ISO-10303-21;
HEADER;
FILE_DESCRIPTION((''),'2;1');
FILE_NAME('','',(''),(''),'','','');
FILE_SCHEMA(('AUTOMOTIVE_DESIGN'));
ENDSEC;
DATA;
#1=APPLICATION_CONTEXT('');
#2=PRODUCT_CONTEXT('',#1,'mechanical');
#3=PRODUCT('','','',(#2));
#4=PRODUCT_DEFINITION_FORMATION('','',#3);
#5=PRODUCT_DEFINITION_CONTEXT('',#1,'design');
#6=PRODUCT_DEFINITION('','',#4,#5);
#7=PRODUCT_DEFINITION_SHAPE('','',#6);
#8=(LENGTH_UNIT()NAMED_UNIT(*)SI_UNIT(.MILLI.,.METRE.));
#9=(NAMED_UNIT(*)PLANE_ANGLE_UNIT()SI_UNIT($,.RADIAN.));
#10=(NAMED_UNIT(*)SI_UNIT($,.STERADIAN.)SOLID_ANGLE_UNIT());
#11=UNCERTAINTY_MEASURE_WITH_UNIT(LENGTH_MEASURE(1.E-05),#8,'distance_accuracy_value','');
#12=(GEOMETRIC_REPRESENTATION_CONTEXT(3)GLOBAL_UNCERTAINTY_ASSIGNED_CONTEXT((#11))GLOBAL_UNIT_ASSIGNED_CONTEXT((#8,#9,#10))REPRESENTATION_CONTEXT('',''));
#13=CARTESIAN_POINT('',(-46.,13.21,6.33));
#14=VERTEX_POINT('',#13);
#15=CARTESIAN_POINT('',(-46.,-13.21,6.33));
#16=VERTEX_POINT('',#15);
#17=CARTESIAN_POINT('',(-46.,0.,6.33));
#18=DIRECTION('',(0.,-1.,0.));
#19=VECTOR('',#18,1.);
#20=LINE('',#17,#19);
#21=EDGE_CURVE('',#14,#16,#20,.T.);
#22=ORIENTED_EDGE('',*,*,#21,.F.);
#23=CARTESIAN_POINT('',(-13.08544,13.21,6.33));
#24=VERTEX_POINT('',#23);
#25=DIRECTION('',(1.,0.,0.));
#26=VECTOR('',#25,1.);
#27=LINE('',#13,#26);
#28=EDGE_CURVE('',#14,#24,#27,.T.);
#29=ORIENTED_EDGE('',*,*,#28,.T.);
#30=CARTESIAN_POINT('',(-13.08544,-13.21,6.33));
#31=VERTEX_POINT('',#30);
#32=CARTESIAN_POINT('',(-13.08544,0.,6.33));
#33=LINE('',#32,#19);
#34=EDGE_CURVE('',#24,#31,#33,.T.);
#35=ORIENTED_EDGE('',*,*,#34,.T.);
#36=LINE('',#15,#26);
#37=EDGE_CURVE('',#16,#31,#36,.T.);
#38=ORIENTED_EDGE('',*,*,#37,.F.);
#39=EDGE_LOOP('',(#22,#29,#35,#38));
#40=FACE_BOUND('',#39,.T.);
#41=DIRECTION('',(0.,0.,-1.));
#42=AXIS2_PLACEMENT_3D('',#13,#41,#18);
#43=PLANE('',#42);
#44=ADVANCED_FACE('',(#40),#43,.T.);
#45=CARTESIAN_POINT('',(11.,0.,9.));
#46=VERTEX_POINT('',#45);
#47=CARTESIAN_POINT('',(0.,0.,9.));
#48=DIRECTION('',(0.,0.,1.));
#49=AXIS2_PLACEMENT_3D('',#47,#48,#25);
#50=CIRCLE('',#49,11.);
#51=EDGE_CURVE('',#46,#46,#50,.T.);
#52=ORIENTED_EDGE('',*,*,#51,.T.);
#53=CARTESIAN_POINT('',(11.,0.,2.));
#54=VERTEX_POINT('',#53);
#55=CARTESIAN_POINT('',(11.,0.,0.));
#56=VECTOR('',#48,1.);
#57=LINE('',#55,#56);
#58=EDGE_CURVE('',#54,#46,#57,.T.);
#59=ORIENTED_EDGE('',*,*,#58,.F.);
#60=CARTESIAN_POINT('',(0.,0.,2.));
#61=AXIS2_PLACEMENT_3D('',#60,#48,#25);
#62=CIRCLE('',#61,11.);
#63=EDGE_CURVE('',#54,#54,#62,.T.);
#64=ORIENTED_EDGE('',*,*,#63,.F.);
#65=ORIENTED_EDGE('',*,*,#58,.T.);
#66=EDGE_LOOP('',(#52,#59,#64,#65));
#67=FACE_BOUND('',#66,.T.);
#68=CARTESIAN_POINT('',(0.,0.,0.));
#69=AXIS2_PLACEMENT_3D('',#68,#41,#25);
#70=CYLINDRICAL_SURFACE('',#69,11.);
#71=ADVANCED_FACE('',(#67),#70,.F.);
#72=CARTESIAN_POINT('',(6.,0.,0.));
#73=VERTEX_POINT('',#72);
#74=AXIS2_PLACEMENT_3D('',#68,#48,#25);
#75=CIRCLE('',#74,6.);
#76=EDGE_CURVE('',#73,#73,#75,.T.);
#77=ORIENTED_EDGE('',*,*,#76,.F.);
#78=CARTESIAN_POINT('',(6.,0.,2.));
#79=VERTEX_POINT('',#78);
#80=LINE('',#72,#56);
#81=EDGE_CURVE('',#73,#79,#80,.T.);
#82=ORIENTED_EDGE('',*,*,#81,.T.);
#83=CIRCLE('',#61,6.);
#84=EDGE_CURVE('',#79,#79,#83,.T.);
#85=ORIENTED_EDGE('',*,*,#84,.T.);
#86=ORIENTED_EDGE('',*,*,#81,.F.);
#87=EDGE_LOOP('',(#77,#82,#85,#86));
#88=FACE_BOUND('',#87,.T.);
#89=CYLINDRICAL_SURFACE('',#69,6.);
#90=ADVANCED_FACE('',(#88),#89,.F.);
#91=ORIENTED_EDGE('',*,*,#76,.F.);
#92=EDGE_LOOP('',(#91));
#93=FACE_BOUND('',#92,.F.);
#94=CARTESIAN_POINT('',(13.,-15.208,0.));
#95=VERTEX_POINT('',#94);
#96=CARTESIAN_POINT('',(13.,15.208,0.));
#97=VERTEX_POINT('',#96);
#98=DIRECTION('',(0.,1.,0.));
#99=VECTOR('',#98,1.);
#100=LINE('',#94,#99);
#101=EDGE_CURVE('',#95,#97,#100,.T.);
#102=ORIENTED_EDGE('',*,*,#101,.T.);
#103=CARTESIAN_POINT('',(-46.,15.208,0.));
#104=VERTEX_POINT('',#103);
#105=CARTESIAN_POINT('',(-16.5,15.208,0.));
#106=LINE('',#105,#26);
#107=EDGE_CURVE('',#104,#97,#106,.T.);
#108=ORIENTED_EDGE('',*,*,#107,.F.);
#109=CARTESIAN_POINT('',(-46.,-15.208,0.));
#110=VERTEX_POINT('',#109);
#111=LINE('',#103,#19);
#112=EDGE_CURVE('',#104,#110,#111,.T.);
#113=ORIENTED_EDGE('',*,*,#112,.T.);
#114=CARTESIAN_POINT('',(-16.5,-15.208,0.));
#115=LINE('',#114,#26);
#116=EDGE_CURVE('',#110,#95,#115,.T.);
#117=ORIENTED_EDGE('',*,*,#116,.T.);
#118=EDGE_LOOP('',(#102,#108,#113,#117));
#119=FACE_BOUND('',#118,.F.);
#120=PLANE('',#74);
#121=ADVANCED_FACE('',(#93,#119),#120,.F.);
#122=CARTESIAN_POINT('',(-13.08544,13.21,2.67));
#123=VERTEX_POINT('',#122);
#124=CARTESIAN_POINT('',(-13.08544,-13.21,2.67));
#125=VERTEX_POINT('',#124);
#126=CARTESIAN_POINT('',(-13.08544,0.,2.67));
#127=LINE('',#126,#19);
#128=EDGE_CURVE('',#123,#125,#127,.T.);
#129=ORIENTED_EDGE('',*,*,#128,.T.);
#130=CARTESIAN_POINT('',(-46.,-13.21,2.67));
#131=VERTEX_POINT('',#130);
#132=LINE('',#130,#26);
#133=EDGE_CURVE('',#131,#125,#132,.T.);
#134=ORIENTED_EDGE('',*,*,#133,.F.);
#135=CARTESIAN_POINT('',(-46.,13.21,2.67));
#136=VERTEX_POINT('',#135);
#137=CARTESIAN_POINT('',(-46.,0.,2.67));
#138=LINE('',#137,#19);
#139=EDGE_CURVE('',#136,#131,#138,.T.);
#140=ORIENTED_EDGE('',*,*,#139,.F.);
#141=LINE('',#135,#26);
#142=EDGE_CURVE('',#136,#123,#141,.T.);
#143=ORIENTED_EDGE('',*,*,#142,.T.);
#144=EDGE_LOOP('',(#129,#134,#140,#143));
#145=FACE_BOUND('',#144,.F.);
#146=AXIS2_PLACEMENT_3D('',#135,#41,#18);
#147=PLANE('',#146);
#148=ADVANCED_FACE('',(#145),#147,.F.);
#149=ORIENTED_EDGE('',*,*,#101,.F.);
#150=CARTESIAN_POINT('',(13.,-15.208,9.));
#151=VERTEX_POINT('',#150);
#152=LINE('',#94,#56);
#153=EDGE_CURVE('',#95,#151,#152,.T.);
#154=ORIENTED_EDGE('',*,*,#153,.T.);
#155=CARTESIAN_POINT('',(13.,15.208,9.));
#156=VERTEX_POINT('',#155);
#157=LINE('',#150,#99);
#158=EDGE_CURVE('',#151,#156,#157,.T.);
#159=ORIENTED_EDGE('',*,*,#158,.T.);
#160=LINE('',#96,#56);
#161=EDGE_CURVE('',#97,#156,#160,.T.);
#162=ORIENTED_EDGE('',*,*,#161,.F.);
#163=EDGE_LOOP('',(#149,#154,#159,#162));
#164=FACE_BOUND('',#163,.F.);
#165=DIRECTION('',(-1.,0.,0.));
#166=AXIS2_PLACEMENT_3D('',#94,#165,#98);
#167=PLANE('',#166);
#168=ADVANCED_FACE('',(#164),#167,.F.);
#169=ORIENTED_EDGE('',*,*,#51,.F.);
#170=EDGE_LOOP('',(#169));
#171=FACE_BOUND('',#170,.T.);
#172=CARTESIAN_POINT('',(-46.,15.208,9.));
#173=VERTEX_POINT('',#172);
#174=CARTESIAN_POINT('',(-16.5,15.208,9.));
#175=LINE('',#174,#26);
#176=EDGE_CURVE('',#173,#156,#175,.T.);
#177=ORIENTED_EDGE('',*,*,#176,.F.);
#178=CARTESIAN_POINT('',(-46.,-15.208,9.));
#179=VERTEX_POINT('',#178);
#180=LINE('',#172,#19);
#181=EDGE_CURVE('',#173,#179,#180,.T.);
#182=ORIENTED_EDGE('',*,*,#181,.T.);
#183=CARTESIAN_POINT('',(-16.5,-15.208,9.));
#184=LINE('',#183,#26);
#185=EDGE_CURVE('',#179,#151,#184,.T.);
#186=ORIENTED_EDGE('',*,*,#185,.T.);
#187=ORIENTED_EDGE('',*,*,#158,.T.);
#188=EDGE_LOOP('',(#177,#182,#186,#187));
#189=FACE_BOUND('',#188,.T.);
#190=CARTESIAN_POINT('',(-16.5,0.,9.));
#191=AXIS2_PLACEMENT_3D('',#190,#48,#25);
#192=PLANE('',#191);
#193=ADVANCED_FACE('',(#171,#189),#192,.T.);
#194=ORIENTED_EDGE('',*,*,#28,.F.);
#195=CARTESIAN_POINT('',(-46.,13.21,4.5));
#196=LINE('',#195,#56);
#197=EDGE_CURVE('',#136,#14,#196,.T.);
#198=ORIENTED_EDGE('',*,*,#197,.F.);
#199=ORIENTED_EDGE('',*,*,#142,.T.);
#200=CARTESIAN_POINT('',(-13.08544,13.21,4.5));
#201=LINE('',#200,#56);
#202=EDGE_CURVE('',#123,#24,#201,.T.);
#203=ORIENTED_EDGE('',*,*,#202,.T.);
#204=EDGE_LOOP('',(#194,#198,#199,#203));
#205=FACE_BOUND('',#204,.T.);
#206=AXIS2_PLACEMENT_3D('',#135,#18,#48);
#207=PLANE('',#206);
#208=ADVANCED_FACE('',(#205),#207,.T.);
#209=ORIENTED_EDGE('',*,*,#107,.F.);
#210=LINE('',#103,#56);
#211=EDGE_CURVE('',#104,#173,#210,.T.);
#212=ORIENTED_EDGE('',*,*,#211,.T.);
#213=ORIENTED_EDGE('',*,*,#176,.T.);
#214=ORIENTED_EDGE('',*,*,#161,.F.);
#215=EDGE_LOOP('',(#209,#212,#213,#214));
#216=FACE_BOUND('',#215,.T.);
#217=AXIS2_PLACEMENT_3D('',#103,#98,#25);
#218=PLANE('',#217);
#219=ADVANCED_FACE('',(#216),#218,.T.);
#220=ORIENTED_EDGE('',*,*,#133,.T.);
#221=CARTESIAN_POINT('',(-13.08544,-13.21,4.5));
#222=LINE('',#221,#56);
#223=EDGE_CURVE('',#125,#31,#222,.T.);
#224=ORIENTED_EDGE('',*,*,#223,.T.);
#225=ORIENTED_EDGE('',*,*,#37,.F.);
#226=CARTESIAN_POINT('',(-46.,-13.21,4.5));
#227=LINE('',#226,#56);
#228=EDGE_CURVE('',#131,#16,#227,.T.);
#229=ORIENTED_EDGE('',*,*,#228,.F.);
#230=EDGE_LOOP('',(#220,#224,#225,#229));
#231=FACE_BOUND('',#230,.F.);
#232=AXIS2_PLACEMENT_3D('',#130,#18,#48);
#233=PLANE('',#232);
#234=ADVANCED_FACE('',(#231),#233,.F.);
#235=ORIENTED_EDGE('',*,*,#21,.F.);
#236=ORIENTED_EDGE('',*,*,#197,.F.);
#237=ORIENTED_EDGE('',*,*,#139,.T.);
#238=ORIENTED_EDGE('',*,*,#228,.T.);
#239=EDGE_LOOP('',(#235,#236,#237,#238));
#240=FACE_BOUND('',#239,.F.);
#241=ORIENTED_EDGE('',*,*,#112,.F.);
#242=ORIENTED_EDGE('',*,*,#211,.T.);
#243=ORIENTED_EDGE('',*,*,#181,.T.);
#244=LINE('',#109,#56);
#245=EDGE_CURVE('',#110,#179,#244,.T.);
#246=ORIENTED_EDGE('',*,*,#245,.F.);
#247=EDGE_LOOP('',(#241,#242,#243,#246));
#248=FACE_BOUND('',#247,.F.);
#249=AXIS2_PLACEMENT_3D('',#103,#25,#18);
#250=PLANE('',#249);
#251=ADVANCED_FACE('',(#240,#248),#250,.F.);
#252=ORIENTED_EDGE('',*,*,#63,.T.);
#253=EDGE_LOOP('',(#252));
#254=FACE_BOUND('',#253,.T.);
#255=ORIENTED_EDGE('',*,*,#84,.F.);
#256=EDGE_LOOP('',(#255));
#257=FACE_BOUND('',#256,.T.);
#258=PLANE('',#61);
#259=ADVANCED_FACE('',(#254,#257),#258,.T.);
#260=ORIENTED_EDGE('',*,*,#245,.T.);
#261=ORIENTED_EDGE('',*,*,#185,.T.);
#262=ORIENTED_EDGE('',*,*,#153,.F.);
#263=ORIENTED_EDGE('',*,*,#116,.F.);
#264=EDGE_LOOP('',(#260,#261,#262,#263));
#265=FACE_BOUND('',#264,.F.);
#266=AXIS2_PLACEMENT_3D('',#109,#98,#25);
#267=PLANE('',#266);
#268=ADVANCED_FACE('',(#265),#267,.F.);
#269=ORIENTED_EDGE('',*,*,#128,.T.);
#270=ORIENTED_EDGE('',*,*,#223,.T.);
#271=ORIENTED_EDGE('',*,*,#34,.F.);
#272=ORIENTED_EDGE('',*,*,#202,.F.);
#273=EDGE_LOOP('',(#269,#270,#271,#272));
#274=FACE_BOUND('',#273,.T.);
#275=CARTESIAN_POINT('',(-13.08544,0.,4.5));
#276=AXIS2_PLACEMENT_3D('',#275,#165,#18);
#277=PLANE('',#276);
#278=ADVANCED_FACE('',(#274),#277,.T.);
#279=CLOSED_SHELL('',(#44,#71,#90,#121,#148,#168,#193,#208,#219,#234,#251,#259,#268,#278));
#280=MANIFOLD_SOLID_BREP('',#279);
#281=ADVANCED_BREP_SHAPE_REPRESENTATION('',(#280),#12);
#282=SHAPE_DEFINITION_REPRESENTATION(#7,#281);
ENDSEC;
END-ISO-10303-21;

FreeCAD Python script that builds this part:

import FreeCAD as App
import Part
import Sketcher


def add_polygon(sketch, points):
    """Adds a closed chain of lines whose ends are joined by coincident constraints."""
    first, n = sketch.GeometryCount, len(points)
    for a, b in zip(points, points[1:] + points[:1]):
        sketch.addGeometry(Part.LineSegment(App.Vector(*a, 0), App.Vector(*b, 0)), False)
    for i in range(n):
        sketch.addConstraint(Sketcher.Constraint("Coincident", first + i, 2, first + (i + 1) % n, 1))

doc = App.newDocument("Part")
params = doc.addObject("Spreadsheet::Sheet", "Params")
for row, (alias, value) in enumerate([
    ("sketch1_diameter", "22 mm"),
    ("sketch1_width", "59 mm"),
    ("pad1_length", "9 mm"),
    ("sketch2_diameter", "22 mm"),
    ("sketch2_diameter2", "12 mm"),
    ("pad2_length", "2 mm"),
    ("sketch3_width", "26.42 mm"),
    ("sketch3_height", "3.66 mm"),
    ("pocket1_length", "32.91456 mm"),
], start=1):
    params.set(f"A{row}", alias)
    params.set(f"B{row}", "=" + value)
    params.setAlias(f"B{row}", alias)

body = doc.addObject("PartDesign::Body", "Body")

# Sketch on XY plane
sketch1 = doc.addObject("Sketcher::SketchObject", "Sketch")
body.addObject(sketch1)
sketch1.AttachmentSupport = (doc.XY_Plane, [""])
sketch1.MapMode = "FlatFace"
add_polygon(sketch1, [(13, 15.208), (-46, 15.208), (-46, -15.208), (13, -15.208)])  # lines 0-3
sketch1.addGeometry(Part.Circle(App.Vector(0, 0, 0), App.Vector(0, 0, 1), 11), False)  # 4
sketch1.addConstraint([
    Sketcher.Constraint("Horizontal", 0),
    Sketcher.Constraint("Vertical", 1),
    Sketcher.Constraint("Horizontal", 2),
    Sketcher.Constraint("Vertical", 3),
    Sketcher.Constraint("Coincident", 4, 3, -1, 1),
    Sketcher.Constraint("Diameter", 4, 22.0),
    Sketcher.Constraint("DistanceX", 0, 2, 0, 1, 59.0),
    Sketcher.Constraint("DistanceX", 0, 2, -1, 1, 46.0),
    Sketcher.Constraint("DistanceY", 1, 2, 1, 1, 30.416),
    Sketcher.Constraint("DistanceY", -1, 1, 0, 2, 15.208),
])
sketch1.setExpression("Constraints[9]", "Params.sketch1_diameter")
sketch1.setExpression("Constraints[10]", "Params.sketch1_width")
pad1 = doc.addObject("PartDesign::Pad", "Pad")
body.addObject(pad1)
pad1.Profile = sketch1
pad1.setExpression("Length", "Params.pad1_length")

# Sketch on XY plane
sketch2 = doc.addObject("Sketcher::SketchObject", "Sketch001")
body.addObject(sketch2)
sketch2.AttachmentSupport = (doc.XY_Plane, [""])
sketch2.MapMode = "FlatFace"
sketch2.addGeometry([
    Part.Circle(App.Vector(0, 0, 0), App.Vector(0, 0, 1), 11),
    Part.Circle(App.Vector(0, 0, 0), App.Vector(0, 0, 1), 6),
], False)
sketch2.addConstraint([
    Sketcher.Constraint("Coincident", 0, 3, -1, 1),
    Sketcher.Constraint("Coincident", 1, 3, -1, 1),
    Sketcher.Constraint("Diameter", 0, 22.0),
    Sketcher.Constraint("Diameter", 1, 12.0),
])
sketch2.setExpression("Constraints[2]", "Params.sketch2_diameter")
sketch2.setExpression("Constraints[3]", "Params.sketch2_diameter2")
pad2 = doc.addObject("PartDesign::Pad", "Pad001")
body.addObject(pad2)
pad2.Profile = sketch2
pad2.setExpression("Length", "Params.pad2_length")

# Sketch on YZ plane
sketch3 = doc.addObject("Sketcher::SketchObject", "Sketch002")
body.addObject(sketch3)
sketch3.AttachmentSupport = (doc.YZ_Plane, [""])
sketch3.MapMode = "FlatFace"
sketch3.AttachmentOffset = App.Placement(App.Vector(0, 0, -46), App.Rotation())
add_polygon(sketch3, [(13.21, 6.33), (13.21, 2.67), (-13.21, 2.67), (-13.21, 6.33)])  # lines 0-3
sketch3.addConstraint([
    Sketcher.Constraint("Vertical", 0),
    Sketcher.Constraint("Horizontal", 1),
    Sketcher.Constraint("Vertical", 2),
    Sketcher.Constraint("Horizontal", 3),
    Sketcher.Constraint("DistanceX", 1, 2, 1, 1, 26.42),
    Sketcher.Constraint("DistanceY", 0, 2, 0, 1, 3.66),
    Sketcher.Constraint("DistanceX", -1, 1, 0, 2, 13.21),
    Sketcher.Constraint("DistanceY", -1, 1, 0, 2, 2.67),
])
sketch3.setExpression("Constraints[8]", "Params.sketch3_width")
sketch3.setExpression("Constraints[9]", "Params.sketch3_height")
pocket1 = doc.addObject("PartDesign::Pocket", "Pocket")
body.addObject(pocket1)
pocket1.Profile = sketch3
pocket1.setExpression("Length", "Params.pocket1_length")
pocket1.Reversed = True

doc.recompute()
